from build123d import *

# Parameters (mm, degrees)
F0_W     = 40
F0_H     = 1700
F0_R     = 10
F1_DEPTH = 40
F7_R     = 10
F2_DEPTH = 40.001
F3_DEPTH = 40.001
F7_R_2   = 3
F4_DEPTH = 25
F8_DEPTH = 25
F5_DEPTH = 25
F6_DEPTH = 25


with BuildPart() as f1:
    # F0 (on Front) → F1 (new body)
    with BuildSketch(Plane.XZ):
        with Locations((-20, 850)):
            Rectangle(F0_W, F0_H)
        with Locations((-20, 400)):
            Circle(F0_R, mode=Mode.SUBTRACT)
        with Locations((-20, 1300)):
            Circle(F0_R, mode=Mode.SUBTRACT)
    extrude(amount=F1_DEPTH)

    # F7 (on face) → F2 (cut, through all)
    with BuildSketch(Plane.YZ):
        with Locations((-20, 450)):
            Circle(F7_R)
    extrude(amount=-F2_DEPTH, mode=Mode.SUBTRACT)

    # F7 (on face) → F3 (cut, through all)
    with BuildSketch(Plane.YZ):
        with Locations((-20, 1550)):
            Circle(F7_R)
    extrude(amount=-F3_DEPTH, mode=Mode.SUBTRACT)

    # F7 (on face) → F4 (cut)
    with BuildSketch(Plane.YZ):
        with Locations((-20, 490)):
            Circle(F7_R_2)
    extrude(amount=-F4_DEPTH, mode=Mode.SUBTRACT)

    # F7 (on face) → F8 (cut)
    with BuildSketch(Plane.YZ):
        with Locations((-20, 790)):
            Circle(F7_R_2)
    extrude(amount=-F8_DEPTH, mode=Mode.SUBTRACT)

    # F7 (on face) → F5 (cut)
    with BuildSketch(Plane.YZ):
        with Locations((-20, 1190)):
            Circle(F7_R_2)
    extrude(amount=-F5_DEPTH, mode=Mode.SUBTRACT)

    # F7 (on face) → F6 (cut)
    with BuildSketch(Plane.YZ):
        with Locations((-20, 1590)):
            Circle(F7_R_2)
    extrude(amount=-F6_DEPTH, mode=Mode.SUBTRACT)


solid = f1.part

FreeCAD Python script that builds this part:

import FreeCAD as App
import Part
import Sketcher
from FreeCAD import Vector


def add_polygon(sketch, points):
    """Adds a closed chain of lines whose ends are joined by coincident constraints."""
    first, n = sketch.GeometryCount, len(points)
    for a, b in zip(points, points[1:] + points[:1]):
        sketch.addGeometry(Part.LineSegment(App.Vector(*a, 0), App.Vector(*b, 0)), False)
    for i in range(n):
        sketch.addConstraint(Sketcher.Constraint("Coincident", first + i, 2, first + (i + 1) % n, 1))

doc = App.newDocument("Part")
body = doc.addObject("PartDesign::Body", "Body")

# Sketch on XZ plane
sketch1 = body.newObject("Sketcher::SketchObject", "Sketch")
sketch1.AttachmentSupport = (doc.getObject("XZ_Plane"), [""])
sketch1.MapMode = "FlatFace"
add_polygon(sketch1, [(-40, 1700), (-40, 0), (0, 0), (0, 1700)])  # lines 0-3
sketch1.addGeometry(Part.Circle(Vector(-20, 400, 0), Vector(0, 0, 1), 10), False)  # 4
sketch1.addGeometry(Part.Circle(Vector(-20, 1300, 0), Vector(0, 0, 1), 10), False)  # 5
sketch1.addConstraint([
    Sketcher.Constraint("Vertical", 0),
    Sketcher.Constraint("Horizontal", 1),
    Sketcher.Constraint("Vertical", 2),
    Sketcher.Constraint("Horizontal", 3),
    Sketcher.Constraint("Coincident", 1, 2, -1, 1),
    Sketcher.Constraint("Equal", 4, 5),
    Sketcher.Constraint("Vertical", 4, 3, 5, 3),
    Sketcher.Constraint("Diameter", 4, 20.0),
    Sketcher.Constraint("DistanceX", 1, 1, 1, 2, 40.0),
    Sketcher.Constraint("DistanceY", 0, 2, 0, 1, 1700.0),
    Sketcher.Constraint("DistanceX", 4, 3, -1, 1, 20.0),
    Sketcher.Constraint("DistanceY", -1, 1, 4, 3, 400.0),
    Sketcher.Constraint("DistanceY", -1, 1, 5, 3, 1300.0),
])
pad1 = body.newObject("PartDesign::Pad", "Pad")
pad1.Profile = sketch1
pad1.Length = 40

# Sketch on YZ plane
sketch2 = body.newObject("Sketcher::SketchObject", "Sketch001")
sketch2.AttachmentSupport = (doc.getObject("YZ_Plane"), [""])
sketch2.MapMode = "FlatFace"
sketch2.addGeometry(Part.Circle(Vector(-20, 450, 0), Vector(0, 0, 1), 10), False)
sketch2.addConstraint([
    Sketcher.Constraint("Diameter", 0, 20.0),
    Sketcher.Constraint("DistanceX", 0, 3, -1, 1, 20.0),
    Sketcher.Constraint("DistanceY", -1, 1, 0, 3, 450.0),
])
pocket1 = body.newObject("PartDesign::Pocket", "Pocket")
pocket1.Profile = sketch2
pocket1.Type = "ThroughAll"

# Sketch on YZ plane
sketch3 = body.newObject("Sketcher::SketchObject", "Sketch002")
sketch3.AttachmentSupport = (doc.getObject("YZ_Plane"), [""])
sketch3.MapMode = "FlatFace"
sketch3.addGeometry(Part.Circle(Vector(-20, 1550, 0), Vector(0, 0, 1), 10), False)
sketch3.addConstraint([
    Sketcher.Constraint("Diameter", 0, 20.0),
    Sketcher.Constraint("DistanceX", 0, 3, -1, 1, 20.0),
    Sketcher.Constraint("DistanceY", -1, 1, 0, 3, 1550.0),
])
pocket2 = body.newObject("PartDesign::Pocket", "Pocket001")
pocket2.Profile = sketch3
pocket2.Type = "ThroughAll"

# Sketch on YZ plane
sketch4 = body.newObject("Sketcher::SketchObject", "Sketch003")
sketch4.AttachmentSupport = (doc.getObject("YZ_Plane"), [""])
sketch4.MapMode = "FlatFace"
sketch4.addGeometry(Part.Circle(Vector(-20, 490, 0), Vector(0, 0, 1), 3), False)
sketch4.addConstraint([
    Sketcher.Constraint("Diameter", 0, 6.0),
    Sketcher.Constraint("DistanceX", 0, 3, -1, 1, 20.0),
    Sketcher.Constraint("DistanceY", -1, 1, 0, 3, 490.0),
])
pocket3 = body.newObject("PartDesign::Pocket", "Pocket002")
pocket3.Profile = sketch4
pocket3.Length = 25

# Sketch on YZ plane
sketch5 = body.newObject("Sketcher::SketchObject", "Sketch004")
sketch5.AttachmentSupport = (doc.getObject("YZ_Plane"), [""])
sketch5.MapMode = "FlatFace"
sketch5.addGeometry(Part.Circle(Vector(-20, 790, 0), Vector(0, 0, 1), 3), False)
sketch5.addConstraint([
    Sketcher.Constraint("Diameter", 0, 6.0),
    Sketcher.Constraint("DistanceX", 0, 3, -1, 1, 20.0),
    Sketcher.Constraint("DistanceY", -1, 1, 0, 3, 790.0),
])
pocket4 = body.newObject("PartDesign::Pocket", "Pocket003")
pocket4.Profile = sketch5
pocket4.Length = 25

# Sketch on YZ plane
sketch6 = body.newObject("Sketcher::SketchObject", "Sketch005")
sketch6.AttachmentSupport = (doc.getObject("YZ_Plane"), [""])
sketch6.MapMode = "FlatFace"
sketch6.addGeometry(Part.Circle(Vector(-20, 1190, 0), Vector(0, 0, 1), 3), False)
sketch6.addConstraint([
    Sketcher.Constraint("Diameter", 0, 6.0),
    Sketcher.Constraint("DistanceX", 0, 3, -1, 1, 20.0),
    Sketcher.Constraint("DistanceY", -1, 1, 0, 3, 1190.0),
])
pocket5 = body.newObject("PartDesign::Pocket", "Pocket004")
pocket5.Profile = sketch6
pocket5.Length = 25

# Sketch on YZ plane
sketch7 = body.newObject("Sketcher::SketchObject", "Sketch006")
sketch7.AttachmentSupport = (doc.getObject("YZ_Plane"), [""])
sketch7.MapMode = "FlatFace"
sketch7.addGeometry(Part.Circle(Vector(-20, 1590, 0), Vector(0, 0, 1), 3), False)
sketch7.addConstraint([
    Sketcher.Constraint("Diameter", 0, 6.0),
    Sketcher.Constraint("DistanceX", 0, 3, -1, 1, 20.0),
    Sketcher.Constraint("DistanceY", -1, 1, 0, 3, 1590.0),
])
pocket6 = body.newObject("PartDesign::Pocket", "Pocket005")
pocket6.Profile = sketch7
pocket6.Length = 25

doc.recompute()
